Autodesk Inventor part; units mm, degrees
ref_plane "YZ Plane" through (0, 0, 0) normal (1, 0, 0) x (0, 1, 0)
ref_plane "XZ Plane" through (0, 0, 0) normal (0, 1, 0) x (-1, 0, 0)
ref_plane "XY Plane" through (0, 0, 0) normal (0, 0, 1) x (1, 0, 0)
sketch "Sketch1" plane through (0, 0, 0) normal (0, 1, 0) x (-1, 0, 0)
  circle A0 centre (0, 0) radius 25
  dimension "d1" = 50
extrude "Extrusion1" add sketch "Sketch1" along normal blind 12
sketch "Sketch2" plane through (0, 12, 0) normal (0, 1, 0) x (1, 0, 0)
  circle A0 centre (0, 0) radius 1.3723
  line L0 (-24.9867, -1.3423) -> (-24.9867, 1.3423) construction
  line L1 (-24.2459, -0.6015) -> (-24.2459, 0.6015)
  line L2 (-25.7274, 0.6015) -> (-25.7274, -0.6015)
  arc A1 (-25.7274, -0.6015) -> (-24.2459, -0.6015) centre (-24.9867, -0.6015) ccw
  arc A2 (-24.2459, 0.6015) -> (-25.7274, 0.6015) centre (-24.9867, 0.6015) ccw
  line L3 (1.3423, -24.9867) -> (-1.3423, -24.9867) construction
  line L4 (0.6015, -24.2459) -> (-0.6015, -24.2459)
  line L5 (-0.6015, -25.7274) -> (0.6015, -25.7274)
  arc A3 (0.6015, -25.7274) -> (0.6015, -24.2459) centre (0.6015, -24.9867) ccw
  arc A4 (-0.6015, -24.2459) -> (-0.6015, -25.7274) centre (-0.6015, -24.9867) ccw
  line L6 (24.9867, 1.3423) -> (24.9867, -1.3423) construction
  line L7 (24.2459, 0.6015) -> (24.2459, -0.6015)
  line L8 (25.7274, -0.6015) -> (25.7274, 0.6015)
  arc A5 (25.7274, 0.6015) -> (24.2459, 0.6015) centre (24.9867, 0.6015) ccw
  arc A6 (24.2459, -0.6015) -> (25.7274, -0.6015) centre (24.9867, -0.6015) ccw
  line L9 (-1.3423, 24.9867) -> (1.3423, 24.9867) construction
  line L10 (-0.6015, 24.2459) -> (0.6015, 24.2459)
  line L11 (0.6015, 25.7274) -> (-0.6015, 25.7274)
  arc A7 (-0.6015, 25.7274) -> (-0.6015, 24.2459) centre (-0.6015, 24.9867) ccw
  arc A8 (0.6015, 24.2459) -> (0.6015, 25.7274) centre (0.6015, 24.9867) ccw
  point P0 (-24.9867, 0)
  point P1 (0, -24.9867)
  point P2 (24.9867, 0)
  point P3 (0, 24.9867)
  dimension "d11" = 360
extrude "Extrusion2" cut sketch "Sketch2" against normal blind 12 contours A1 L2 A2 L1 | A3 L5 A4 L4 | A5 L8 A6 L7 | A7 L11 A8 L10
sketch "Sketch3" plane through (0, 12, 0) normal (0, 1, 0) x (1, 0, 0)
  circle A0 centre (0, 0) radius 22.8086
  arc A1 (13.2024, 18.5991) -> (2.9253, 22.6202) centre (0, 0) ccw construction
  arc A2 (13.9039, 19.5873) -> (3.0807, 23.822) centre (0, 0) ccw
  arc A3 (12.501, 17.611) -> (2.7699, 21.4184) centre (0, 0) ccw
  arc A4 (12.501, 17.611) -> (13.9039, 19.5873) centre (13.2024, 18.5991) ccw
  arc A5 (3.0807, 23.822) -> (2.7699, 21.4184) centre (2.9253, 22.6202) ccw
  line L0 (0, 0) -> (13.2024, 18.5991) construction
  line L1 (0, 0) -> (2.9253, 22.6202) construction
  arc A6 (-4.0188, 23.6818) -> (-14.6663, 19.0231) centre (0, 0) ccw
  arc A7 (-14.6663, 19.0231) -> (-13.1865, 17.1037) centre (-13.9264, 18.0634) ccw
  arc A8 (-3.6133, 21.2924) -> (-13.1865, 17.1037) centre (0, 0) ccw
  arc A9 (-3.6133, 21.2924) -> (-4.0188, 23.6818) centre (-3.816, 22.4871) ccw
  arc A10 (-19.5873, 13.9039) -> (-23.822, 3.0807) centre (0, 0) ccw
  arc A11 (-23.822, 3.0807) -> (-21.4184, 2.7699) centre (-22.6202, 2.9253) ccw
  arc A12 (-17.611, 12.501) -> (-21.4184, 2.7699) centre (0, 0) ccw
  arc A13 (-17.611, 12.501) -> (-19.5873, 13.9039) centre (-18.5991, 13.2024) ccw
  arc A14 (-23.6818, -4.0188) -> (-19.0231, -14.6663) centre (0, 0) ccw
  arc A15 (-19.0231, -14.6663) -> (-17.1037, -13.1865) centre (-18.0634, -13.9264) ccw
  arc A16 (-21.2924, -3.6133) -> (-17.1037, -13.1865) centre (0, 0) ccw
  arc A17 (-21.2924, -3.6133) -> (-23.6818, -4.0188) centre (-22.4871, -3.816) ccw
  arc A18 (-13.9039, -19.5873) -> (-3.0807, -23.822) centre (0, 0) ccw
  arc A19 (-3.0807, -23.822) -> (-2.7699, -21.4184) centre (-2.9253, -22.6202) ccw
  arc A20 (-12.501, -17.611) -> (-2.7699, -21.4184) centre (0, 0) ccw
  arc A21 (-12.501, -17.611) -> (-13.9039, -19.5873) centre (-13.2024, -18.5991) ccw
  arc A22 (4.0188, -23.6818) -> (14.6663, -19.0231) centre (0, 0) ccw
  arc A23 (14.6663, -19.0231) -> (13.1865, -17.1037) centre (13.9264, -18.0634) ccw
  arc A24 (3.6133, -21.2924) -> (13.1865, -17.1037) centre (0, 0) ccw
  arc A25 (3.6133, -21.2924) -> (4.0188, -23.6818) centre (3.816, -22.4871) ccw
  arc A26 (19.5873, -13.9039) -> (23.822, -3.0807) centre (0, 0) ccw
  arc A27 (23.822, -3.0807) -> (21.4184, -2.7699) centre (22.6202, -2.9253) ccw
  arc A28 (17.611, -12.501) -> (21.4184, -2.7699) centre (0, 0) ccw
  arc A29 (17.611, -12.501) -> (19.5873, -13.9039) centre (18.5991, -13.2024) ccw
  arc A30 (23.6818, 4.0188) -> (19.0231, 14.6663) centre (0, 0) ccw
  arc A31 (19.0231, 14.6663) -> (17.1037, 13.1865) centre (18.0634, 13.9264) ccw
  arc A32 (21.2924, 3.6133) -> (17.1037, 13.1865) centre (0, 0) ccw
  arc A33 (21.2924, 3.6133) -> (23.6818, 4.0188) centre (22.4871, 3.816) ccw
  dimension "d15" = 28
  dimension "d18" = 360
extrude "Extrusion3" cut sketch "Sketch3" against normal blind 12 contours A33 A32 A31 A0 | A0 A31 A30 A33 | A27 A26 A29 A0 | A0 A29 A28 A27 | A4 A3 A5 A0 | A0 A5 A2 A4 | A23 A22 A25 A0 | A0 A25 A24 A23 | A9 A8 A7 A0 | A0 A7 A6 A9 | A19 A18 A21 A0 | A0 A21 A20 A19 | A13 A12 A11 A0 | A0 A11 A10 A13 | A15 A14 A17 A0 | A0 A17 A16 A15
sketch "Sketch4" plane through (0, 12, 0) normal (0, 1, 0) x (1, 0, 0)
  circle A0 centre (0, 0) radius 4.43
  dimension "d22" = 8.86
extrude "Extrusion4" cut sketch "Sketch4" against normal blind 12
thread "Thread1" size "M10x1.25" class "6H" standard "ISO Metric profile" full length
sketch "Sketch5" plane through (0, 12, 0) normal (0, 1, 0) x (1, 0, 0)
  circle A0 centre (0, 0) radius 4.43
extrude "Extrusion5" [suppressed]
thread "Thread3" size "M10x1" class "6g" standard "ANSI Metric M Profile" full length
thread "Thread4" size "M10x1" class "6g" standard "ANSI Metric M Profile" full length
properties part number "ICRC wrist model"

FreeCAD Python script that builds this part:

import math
import FreeCAD as App
import Part
import Sketcher
from FreeCAD import Vector
Q = App.Units.Quantity

doc = App.newDocument("Part")
body = doc.addObject("PartDesign::Body", "Body")

# Sketch on XZ plane
sketch1 = body.newObject("Sketcher::SketchObject", "Sketch")
sketch1.AttachmentSupport = (doc.getObject("XZ_Plane"), [""])
sketch1.MapMode = "FlatFace"
sketch1.addGeometry(Part.Circle(Vector(0, 0, 0), Vector(0, 0, 1), 25), False)
sketch1.addConstraint([
    Sketcher.Constraint("Coincident", 0, 3, -1, 1),
    Sketcher.Constraint("Diameter", 0, Q("50 mm")),
])
pad1 = body.newObject("PartDesign::Pad", "Pad")
pad1.Profile = sketch1
pad1.Length = 12
pad1.Reversed = True

# Sketch on XZ plane
sketch2 = body.newObject("Sketcher::SketchObject", "Sketch001")
sketch2.AttachmentSupport = (doc.getObject("XZ_Plane"), [""])
sketch2.MapMode = "FlatFace"
sketch2.AttachmentOffset = App.Placement(Vector(0, 0, -12), App.Rotation())
sketch2.addGeometry([
    Part.ArcOfCircle(Part.Circle(Vector(-25, 0.6, 0), Vector(0, 0, 1), 0.7), math.radians(0), math.radians(180)),  # 0
    Part.LineSegment(Vector(-24.2, 0.6, 0), Vector(-24.2, -0.6, 0)),  # 1
    Part.ArcOfCircle(Part.Circle(Vector(-25, -0.6, 0), Vector(0, 0, 1), 0.7), math.radians(180), math.radians(360)),  # 2
    Part.LineSegment(Vector(-25.7, -0.6, 0), Vector(-25.7, 0.6, 0)),  # 3
    Part.ArcOfCircle(Part.Circle(Vector(0.6, 25, 0), Vector(0, 0, 1), 0.7), math.radians(-90), math.radians(90)),  # 4
    Part.LineSegment(Vector(0.6, 24.2, 0), Vector(-0.6, 24.2, 0)),  # 5
    Part.ArcOfCircle(Part.Circle(Vector(-0.6, 25, 0), Vector(0, 0, 1), 0.7), math.radians(90), math.radians(270)),  # 6
    Part.LineSegment(Vector(-0.6, 25.7, 0), Vector(0.6, 25.7, 0)),  # 7
    Part.ArcOfCircle(Part.Circle(Vector(25, -0.6, 0), Vector(0, 0, 1), 0.7), math.radians(180), math.radians(360)),  # 8
    Part.LineSegment(Vector(24.2, -0.6, 0), Vector(24.2, 0.6, 0)),  # 9
    Part.ArcOfCircle(Part.Circle(Vector(25, 0.6, 0), Vector(0, 0, 1), 0.7), math.radians(0), math.radians(180)),  # 10
    Part.LineSegment(Vector(25.7, 0.6, 0), Vector(25.7, -0.6, 0)),  # 11
    Part.ArcOfCircle(Part.Circle(Vector(-0.6, -25, 0), Vector(0, 0, 1), 0.7), math.radians(90), math.radians(270)),  # 12
    Part.LineSegment(Vector(-0.6, -24.2, 0), Vector(0.6, -24.2, 0)),  # 13
    Part.ArcOfCircle(Part.Circle(Vector(0.6, -25, 0), Vector(0, 0, 1), 0.7), math.radians(-90), math.radians(90)),  # 14
    Part.LineSegment(Vector(0.6, -25.7, 0), Vector(-0.6, -25.7, 0)),  # 15
], False)
sketch2.addConstraint([
    Sketcher.Constraint("Tangent", 0, 1, 1, 1),
    Sketcher.Constraint("Tangent", 1, 2, 2, 2),
    Sketcher.Constraint("Tangent", 2, 1, 3, 1),
    Sketcher.Constraint("Tangent", 3, 2, 0, 2),
    Sketcher.Constraint("Tangent", 4, 1, 5, 1),
    Sketcher.Constraint("Tangent", 5, 2, 6, 2),
    Sketcher.Constraint("Tangent", 6, 1, 7, 1),
    Sketcher.Constraint("Tangent", 7, 2, 4, 2),
    Sketcher.Constraint("Tangent", 8, 1, 9, 1),
    Sketcher.Constraint("Tangent", 9, 2, 10, 2),
    Sketcher.Constraint("Tangent", 10, 1, 11, 1),
    Sketcher.Constraint("Tangent", 11, 2, 8, 2),
    Sketcher.Constraint("Tangent", 12, 1, 13, 1),
    Sketcher.Constraint("Tangent", 13, 2, 14, 2),
    Sketcher.Constraint("Tangent", 14, 1, 15, 1),
    Sketcher.Constraint("Tangent", 15, 2, 12, 2),
    Sketcher.Constraint("Vertical", 1),
    Sketcher.Constraint("Vertical", 3),
    Sketcher.Constraint("Horizontal", 5),
    Sketcher.Constraint("Horizontal", 7),
    Sketcher.Constraint("Vertical", 9),
    Sketcher.Constraint("Vertical", 11),
    Sketcher.Constraint("Horizontal", 13),
    Sketcher.Constraint("Horizontal", 15),
    Sketcher.Constraint("Equal", 2, 4),
    Sketcher.Constraint("Equal", 6, 8),
    Sketcher.Constraint("Equal", 10, 12),
    Sketcher.Constraint("Symmetric", 0, 3, 8, 3, -1, 1),
    Sketcher.Constraint("Symmetric", 4, 3, 12, 3, -1, 1),
    Sketcher.Constraint("Horizontal", 2, 3, 8, 3),
    Sketcher.Constraint("Horizontal", 0, 3, 10, 3),
    Sketcher.Constraint("Vertical", 6, 3, 12, 3),
    Sketcher.Constraint("Vertical", 4, 3, 14, 3),
    Sketcher.Constraint("Equal", 15, 1),
    Sketcher.Constraint("Radius", 0, Q("0.7407 mm")),
    Sketcher.Constraint("DistanceX", 5, 2, 5, 1, Q("1.203 mm")),
    Sketcher.Constraint("DistanceX", 0, 1, -1, 1, Q("24.246 mm")),
    Sketcher.Constraint("DistanceY", -1, 1, 4, 1, Q("24.246 mm")),
])
pocket1 = body.newObject("PartDesign::Pocket", "Pocket")
pocket1.Profile = sketch2
pocket1.Length = 12
pocket1.Reversed = True

# Sketch on XZ plane
sketch3 = body.newObject("Sketcher::SketchObject", "Sketch002")
sketch3.AttachmentSupport = (doc.getObject("XZ_Plane"), [""])
sketch3.MapMode = "FlatFace"
sketch3.AttachmentOffset = App.Placement(Vector(0, 0, -12), App.Rotation())
sketch3.addGeometry([
    Part.ArcOfCircle(Part.Circle(Vector(22.5, -3.8, 0), Vector(0, 0, 1), 1.2), math.radians(-10), math.radians(170)),  # 0
    Part.ArcOfCircle(Part.Circle(Vector(0, 0, 0), Vector(0, 0, 1), 24), math.radians(-38), math.radians(-10)),  # 1
    Part.ArcOfCircle(Part.Circle(Vector(18.1, -13.9, 0), Vector(0, 0, 1), 1.2), math.radians(142), math.radians(322)),  # 2
    Part.ArcOfCircle(Part.Circle(Vector(0, 0, 0), Vector(0, 0, 1), 21.6), math.radians(-38), math.radians(-10)),  # 3
    Part.ArcOfCircle(Part.Circle(Vector(22.6, 2.9, 0), Vector(0, 0, 1), 1.2), math.radians(-173), math.radians(7)),  # 4
    Part.ArcOfCircle(Part.Circle(Vector(0, 0, 0), Vector(0, 0, 1), 21.6), math.radians(7), math.radians(35)),  # 5
    Part.ArcOfCircle(Part.Circle(Vector(18.6, 13.2, 0), Vector(0, 0, 1), 1.2), math.radians(35), math.radians(215)),  # 6
    Part.ArcOfCircle(Part.Circle(Vector(0, 0, 0), Vector(0, 0, 1), 24), math.radians(7), math.radians(35)),  # 7
    Part.ArcOfCircle(Part.Circle(Vector(13.2, -18.6, 0), Vector(0, 0, 1), 1.2), math.radians(-55), math.radians(125)),  # 8
    Part.ArcOfCircle(Part.Circle(Vector(0, 0, 0), Vector(0, 0, 1), 24), math.radians(-83), math.radians(-55)),  # 9
    Part.ArcOfCircle(Part.Circle(Vector(2.9, -22.6, 0), Vector(0, 0, 1), 1.2), math.radians(97), math.radians(277)),  # 10
    Part.ArcOfCircle(Part.Circle(Vector(0, 0, 0), Vector(0, 0, 1), 21.6), math.radians(-83), math.radians(-55)),  # 11
    Part.ArcOfCircle(Part.Circle(Vector(13.9, 18.1, 0), Vector(0, 0, 1), 1.2), math.radians(-128), math.radians(52)),  # 12
    Part.ArcOfCircle(Part.Circle(Vector(0, 0, 0), Vector(0, 0, 1), 21.6), math.radians(52), math.radians(80)),  # 13
    Part.ArcOfCircle(Part.Circle(Vector(3.8, 22.5, 0), Vector(0, 0, 1), 1.2), math.radians(80), math.radians(260)),  # 14
    Part.ArcOfCircle(Part.Circle(Vector(0, 0, 0), Vector(0, 0, 1), 24), math.radians(52), math.radians(80)),  # 15
    Part.ArcOfCircle(Part.Circle(Vector(-3.8, -22.5, 0), Vector(0, 0, 1), 1.2), math.radians(-100), math.radians(80)),  # 16
    Part.ArcOfCircle(Part.Circle(Vector(0, 0, 0), Vector(0, 0, 1), 24), math.radians(-128), math.radians(-100)),  # 17
    Part.ArcOfCircle(Part.Circle(Vector(-13.9, -18.1, 0), Vector(0, 0, 1), 1.2), math.radians(52), math.radians(232)),  # 18
    Part.ArcOfCircle(Part.Circle(Vector(0, 0, 0), Vector(0, 0, 1), 21.6), math.radians(-128), math.radians(-100)),  # 19
    Part.ArcOfCircle(Part.Circle(Vector(-2.9, 22.6, 0), Vector(0, 0, 1), 1.2), math.radians(-83), math.radians(97)),  # 20
    Part.ArcOfCircle(Part.Circle(Vector(0, 0, 0), Vector(0, 0, 1), 21.6), math.radians(97), math.radians(125)),  # 21
    Part.ArcOfCircle(Part.Circle(Vector(-13.2, 18.6, 0), Vector(0, 0, 1), 1.2), math.radians(125), math.radians(305)),  # 22
    Part.ArcOfCircle(Part.Circle(Vector(0, 0, 0), Vector(0, 0, 1), 24), math.radians(97), math.radians(125)),  # 23
    Part.ArcOfCircle(Part.Circle(Vector(-18.6, -13.2, 0), Vector(0, 0, 1), 1.2), math.radians(-145), math.radians(35)),  # 24
    Part.ArcOfCircle(Part.Circle(Vector(0, 0, 0), Vector(0, 0, 1), 24), math.radians(-173), math.radians(-145)),  # 25
    Part.ArcOfCircle(Part.Circle(Vector(-22.6, -2.9, 0), Vector(0, 0, 1), 1.2), math.radians(7), math.radians(187)),  # 26
    Part.ArcOfCircle(Part.Circle(Vector(0, 0, 0), Vector(0, 0, 1), 21.6), math.radians(-173), math.radians(-145)),  # 27
    Part.ArcOfCircle(Part.Circle(Vector(-18.1, 13.9, 0), Vector(0, 0, 1), 1.2), math.radians(-38), math.radians(142)),  # 28
    Part.ArcOfCircle(Part.Circle(Vector(0, 0, 0), Vector(0, 0, 1), 21.6), math.radians(142), math.radians(170)),  # 29
    Part.ArcOfCircle(Part.Circle(Vector(-22.5, 3.8, 0), Vector(0, 0, 1), 1.2), math.radians(170), math.radians(350)),  # 30
    Part.ArcOfCircle(Part.Circle(Vector(0, 0, 0), Vector(0, 0, 1), 24), math.radians(142), math.radians(170)),  # 31
], False)
sketch3.addConstraint([
    Sketcher.Constraint("Tangent", 0, 1, 1, 2),
    Sketcher.Constraint("Tangent", 1, 1, 2, 2),
    Sketcher.Constraint("Tangent", 2, 1, 3, 1),
    Sketcher.Constraint("Tangent", 3, 2, 0, 2),
    Sketcher.Constraint("Tangent", 4, 1, 5, 1),
    Sketcher.Constraint("Tangent", 5, 2, 6, 2),
    Sketcher.Constraint("Tangent", 6, 1, 7, 2),
    Sketcher.Constraint("Tangent", 7, 1, 4, 2),
    Sketcher.Constraint("Tangent", 8, 1, 9, 2),
    Sketcher.Constraint("Tangent", 9, 1, 10, 2),
    Sketcher.Constraint("Tangent", 10, 1, 11, 1),
    Sketcher.Constraint("Tangent", 11, 2, 8, 2),
    Sketcher.Constraint("Tangent", 12, 1, 13, 1),
    Sketcher.Constraint("Tangent", 13, 2, 14, 2),
    Sketcher.Constraint("Tangent", 14, 1, 15, 2),
    Sketcher.Constraint("Tangent", 15, 1, 12, 2),
    Sketcher.Constraint("Tangent", 16, 1, 17, 2),
    Sketcher.Constraint("Tangent", 17, 1, 18, 2),
    Sketcher.Constraint("Tangent", 18, 1, 19, 1),
    Sketcher.Constraint("Tangent", 19, 2, 16, 2),
    Sketcher.Constraint("Tangent", 20, 1, 21, 1),
    Sketcher.Constraint("Tangent", 21, 2, 22, 2),
    Sketcher.Constraint("Tangent", 22, 1, 23, 2),
    Sketcher.Constraint("Tangent", 23, 1, 20, 2),
    Sketcher.Constraint("Tangent", 24, 1, 25, 2),
    Sketcher.Constraint("Tangent", 25, 1, 26, 2),
    Sketcher.Constraint("Tangent", 26, 1, 27, 1),
    Sketcher.Constraint("Tangent", 27, 2, 24, 2),
    Sketcher.Constraint("Tangent", 28, 1, 29, 1),
    Sketcher.Constraint("Tangent", 29, 2, 30, 2),
    Sketcher.Constraint("Tangent", 30, 1, 31, 2),
    Sketcher.Constraint("Tangent", 31, 1, 28, 2),
    Sketcher.Constraint("Coincident", 1, 3, -1, 1),
    Sketcher.Constraint("Coincident", 3, 3, -1, 1),
    Sketcher.Constraint("Coincident", 5, 3, -1, 1),
    Sketcher.Constraint("Coincident", 7, 3, -1, 1),
    Sketcher.Constraint("Coincident", 9, 3, -1, 1),
    Sketcher.Constraint("Coincident", 11, 3, -1, 1),
    Sketcher.Constraint("Coincident", 13, 3, -1, 1),
    Sketcher.Constraint("Coincident", 15, 3, -1, 1),
    Sketcher.Constraint("Coincident", 17, 3, -1, 1),
    Sketcher.Constraint("Coincident", 19, 3, -1, 1),
    Sketcher.Constraint("Coincident", 21, 3, -1, 1),
    Sketcher.Constraint("Coincident", 23, 3, -1, 1),
    Sketcher.Constraint("Coincident", 25, 3, -1, 1),
    Sketcher.Constraint("Coincident", 27, 3, -1, 1),
    Sketcher.Constraint("Coincident", 29, 3, -1, 1),
    Sketcher.Constraint("Coincident", 31, 3, -1, 1),
    Sketcher.Constraint("Equal", 2, 4),
    Sketcher.Constraint("Equal", 3, 5),
    Sketcher.Constraint("Equal", 6, 8),
    Sketcher.Constraint("Equal", 7, 9),
    Sketcher.Constraint("Equal", 10, 12),
    Sketcher.Constraint("Equal", 11, 13),
    Sketcher.Constraint("Equal", 14, 16),
    Sketcher.Constraint("Equal", 15, 17),
    Sketcher.Constraint("Equal", 18, 20),
    Sketcher.Constraint("Equal", 19, 21),
    Sketcher.Constraint("Equal", 22, 24),
    Sketcher.Constraint("Equal", 23, 25),
    Sketcher.Constraint("Equal", 26, 28),
    Sketcher.Constraint("Equal", 27, 29),
    Sketcher.Constraint("Radius", 0, Q("1.2118 mm")),
    Sketcher.Constraint("Radius", 1, Q("24.0204 mm")),
    Sketcher.Constraint("DistanceY", -1, 1, 4, 1, Q("2.77 mm")),
    Sketcher.Constraint("DistanceX", -1, 1, 10, 1, Q("2.77 mm")),
    Sketcher.Constraint("DistanceX", 20, 1, -1, 1, Q("2.77 mm")),
    Sketcher.Constraint("DistanceY", 26, 1, -1, 1, Q("2.77 mm")),
    Sketcher.Constraint("DistanceX", -1, 1, 0, 3, Q("22.487 mm")),
    Sketcher.Constraint("DistanceX", -1, 1, 6, 3, Q("18.599 mm")),
    Sketcher.Constraint("DistanceY", 8, 3, -1, 1, Q("18.599 mm")),
    Sketcher.Constraint("DistanceX", -1, 1, 14, 3, Q("3.816 mm")),
    Sketcher.Constraint("DistanceX", 16, 3, -1, 1, Q("3.816 mm")),
    Sketcher.Constraint("DistanceY", -1, 1, 22, 3, Q("18.599 mm")),
    Sketcher.Constraint("DistanceX", 24, 3, -1, 1, Q("18.599 mm")),
    Sketcher.Constraint("DistanceX", 30, 3, -1, 1, Q("22.487 mm")),
    Sketcher.Constraint("DistanceX", -1, 1, 2, 3, Q("18.0634 mm")),
    Sketcher.Constraint("DistanceX", -1, 1, 12, 3, Q("13.9264 mm")),
    Sketcher.Constraint("DistanceX", 18, 3, -1, 1, Q("13.9264 mm")),
    Sketcher.Constraint("DistanceX", 28, 3, -1, 1, Q("18.0634 mm")),
])
pocket2 = body.newObject("PartDesign::Pocket", "Pocket001")
pocket2.Profile = sketch3
pocket2.Length = 12
pocket2.Reversed = True

# Sketch on XZ plane
sketch4 = body.newObject("Sketcher::SketchObject", "Sketch003")
sketch4.AttachmentSupport = (doc.getObject("XZ_Plane"), [""])
sketch4.MapMode = "FlatFace"
sketch4.AttachmentOffset = App.Placement(Vector(0, 0, -12), App.Rotation())
sketch4.addGeometry(Part.Circle(Vector(0, 0, 0), Vector(0, 0, 1), 4.4), False)
sketch4.addConstraint([
    Sketcher.Constraint("Coincident", 0, 3, -1, 1),
    Sketcher.Constraint("Diameter", 0, Q("8.86 mm")),
])
pocket3 = body.newObject("PartDesign::Pocket", "Pocket002")
pocket3.Profile = sketch4
pocket3.Length = 12
pocket3.Reversed = True

doc.recompute()
